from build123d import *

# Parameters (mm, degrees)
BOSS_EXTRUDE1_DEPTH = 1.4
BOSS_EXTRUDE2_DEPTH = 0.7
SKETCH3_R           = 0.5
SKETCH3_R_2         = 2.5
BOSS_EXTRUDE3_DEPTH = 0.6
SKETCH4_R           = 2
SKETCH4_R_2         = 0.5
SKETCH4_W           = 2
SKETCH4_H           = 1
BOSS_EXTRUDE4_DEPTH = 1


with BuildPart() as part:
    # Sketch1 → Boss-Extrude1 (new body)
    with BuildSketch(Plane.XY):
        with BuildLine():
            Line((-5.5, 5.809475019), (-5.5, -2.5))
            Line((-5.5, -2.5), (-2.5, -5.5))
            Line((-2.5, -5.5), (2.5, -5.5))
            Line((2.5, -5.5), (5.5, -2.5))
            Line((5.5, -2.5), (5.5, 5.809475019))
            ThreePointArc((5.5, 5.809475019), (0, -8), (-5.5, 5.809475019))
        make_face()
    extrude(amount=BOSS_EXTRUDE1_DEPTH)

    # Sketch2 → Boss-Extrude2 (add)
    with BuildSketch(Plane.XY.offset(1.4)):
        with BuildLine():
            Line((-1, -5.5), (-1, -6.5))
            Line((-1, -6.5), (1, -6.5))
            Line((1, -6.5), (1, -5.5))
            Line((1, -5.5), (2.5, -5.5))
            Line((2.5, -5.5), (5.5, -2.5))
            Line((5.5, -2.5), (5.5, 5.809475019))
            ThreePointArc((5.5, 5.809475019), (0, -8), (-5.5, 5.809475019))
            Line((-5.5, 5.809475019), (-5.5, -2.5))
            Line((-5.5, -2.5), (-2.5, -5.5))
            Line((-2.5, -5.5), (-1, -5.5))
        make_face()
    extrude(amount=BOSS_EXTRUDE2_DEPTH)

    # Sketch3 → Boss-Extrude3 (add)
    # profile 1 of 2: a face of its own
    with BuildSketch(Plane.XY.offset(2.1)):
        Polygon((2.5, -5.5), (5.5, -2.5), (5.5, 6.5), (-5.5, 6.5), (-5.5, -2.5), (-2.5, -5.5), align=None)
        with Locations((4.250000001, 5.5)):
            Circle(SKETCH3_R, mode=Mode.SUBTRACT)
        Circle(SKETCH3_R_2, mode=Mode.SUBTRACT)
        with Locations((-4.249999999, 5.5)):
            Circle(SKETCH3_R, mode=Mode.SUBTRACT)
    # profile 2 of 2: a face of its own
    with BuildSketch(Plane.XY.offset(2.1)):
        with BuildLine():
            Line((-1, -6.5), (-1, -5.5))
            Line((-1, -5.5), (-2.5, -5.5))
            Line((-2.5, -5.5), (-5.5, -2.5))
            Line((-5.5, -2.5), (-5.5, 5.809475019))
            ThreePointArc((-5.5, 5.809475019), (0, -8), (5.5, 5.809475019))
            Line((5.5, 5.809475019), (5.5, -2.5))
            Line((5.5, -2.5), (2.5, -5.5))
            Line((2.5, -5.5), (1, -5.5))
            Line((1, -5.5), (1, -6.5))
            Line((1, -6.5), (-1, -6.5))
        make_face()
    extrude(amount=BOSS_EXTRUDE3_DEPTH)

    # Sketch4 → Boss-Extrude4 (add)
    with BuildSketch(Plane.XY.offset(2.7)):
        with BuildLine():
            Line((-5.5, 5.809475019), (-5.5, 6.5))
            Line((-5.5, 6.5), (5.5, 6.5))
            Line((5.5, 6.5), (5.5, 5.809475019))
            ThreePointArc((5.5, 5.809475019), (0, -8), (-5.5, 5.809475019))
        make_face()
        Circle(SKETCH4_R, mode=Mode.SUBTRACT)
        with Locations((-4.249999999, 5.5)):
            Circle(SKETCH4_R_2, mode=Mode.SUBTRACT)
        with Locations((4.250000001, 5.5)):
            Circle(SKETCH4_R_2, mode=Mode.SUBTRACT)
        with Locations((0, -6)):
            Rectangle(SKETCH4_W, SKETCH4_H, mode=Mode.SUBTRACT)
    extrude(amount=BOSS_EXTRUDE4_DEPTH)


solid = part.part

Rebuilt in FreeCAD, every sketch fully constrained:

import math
import FreeCAD as App
import Part
import Sketcher

V = App.Vector

doc = App.newDocument("Part")
body = doc.addObject("PartDesign::Body", "Body")

# Sketch on XY plane
sketch1 = body.newObject("Sketcher::SketchObject", "Sketch")
sketch1.AttachmentSupport = (doc.getObject("XY_Plane"), [""])
sketch1.MapMode = "FlatFace"
sketch1.addGeometry(Part.LineSegment(V(-5.5, -2.5, 0), V(-5.5, 5.8, 0)), False)
sketch1.addGeometry(Part.ArcOfCircle(Part.Circle(V(0, 0, 0), V(0, 0, 1), 8), math.radians(133), math.radians(407)), False)
sketch1.addGeometry(Part.LineSegment(V(5.5, 5.8, 0), V(5.5, -2.5, 0)), False)
sketch1.addGeometry(Part.LineSegment(V(5.5, -2.5, 0), V(2.5, -5.5, 0)), False)
sketch1.addGeometry(Part.LineSegment(V(2.5, -5.5, 0), V(-2.5, -5.5, 0)), False)
sketch1.addGeometry(Part.LineSegment(V(-2.5, -5.5, 0), V(-5.5, -2.5, 0)), False)
sketch1.addConstraint(Sketcher.Constraint("Coincident", 0, 2, 1, 1))
sketch1.addConstraint(Sketcher.Constraint("Coincident", 1, 2, 2, 1))
sketch1.addConstraint(Sketcher.Constraint("Coincident", 2, 2, 3, 1))
sketch1.addConstraint(Sketcher.Constraint("Coincident", 3, 2, 4, 1))
sketch1.addConstraint(Sketcher.Constraint("Coincident", 4, 2, 5, 1))
sketch1.addConstraint(Sketcher.Constraint("Coincident", 5, 2, 0, 1))
sketch1.addConstraint(Sketcher.Constraint("Vertical", 0))
sketch1.addConstraint(Sketcher.Constraint("Vertical", 2))
sketch1.addConstraint(Sketcher.Constraint("Horizontal", 4))
sketch1.addConstraint(Sketcher.Constraint("Coincident", 1, 3, -1, 1))
sketch1.addConstraint(Sketcher.Constraint("Symmetric", 2, 2, 5, 2, -2))
sketch1.addConstraint(Sketcher.Constraint("Perpendicular", 3, 5))
sketch1.addConstraint(Sketcher.Constraint("Equal", 3, 5))
sketch1.addConstraint(Sketcher.Constraint("Radius", 1, 8.0))
sketch1.addConstraint(Sketcher.Constraint("DistanceX", 4, 2, 4, 1, 5.0))
sketch1.addConstraint(Sketcher.Constraint("DistanceX", 0, 2, 1, 2, 11.0))
sketch1.addConstraint(Sketcher.Constraint("DistanceY", 2, 2, -1, 1, 2.5))
pad1 = body.newObject("PartDesign::Pad", "Pad")
pad1.Profile = sketch1
pad1.Length = 1.4

# Sketch on XY plane
sketch2 = body.newObject("Sketcher::SketchObject", "Sketch001")
sketch2.AttachmentSupport = (doc.getObject("XY_Plane"), [""])
sketch2.MapMode = "FlatFace"
sketch2.AttachmentOffset = App.Placement(V(0, 0, 1.4), App.Rotation())
sketch2.addGeometry(Part.LineSegment(V(-1, -6.5, 0), V(-1, -5.5, 0)), False)
sketch2.addGeometry(Part.LineSegment(V(-1, -5.5, 0), V(-2.5, -5.5, 0)), False)
sketch2.addGeometry(Part.LineSegment(V(-2.5, -5.5, 0), V(-5.5, -2.5, 0)), False)
sketch2.addGeometry(Part.LineSegment(V(-5.5, -2.5, 0), V(-5.5, 5.8, 0)), False)
sketch2.addGeometry(Part.ArcOfCircle(Part.Circle(V(0, 0, 0), V(0, 0, 1), 8), math.radians(133), math.radians(407)), False)
sketch2.addGeometry(Part.LineSegment(V(5.5, 5.8, 0), V(5.5, -2.5, 0)), False)
sketch2.addGeometry(Part.LineSegment(V(5.5, -2.5, 0), V(2.5, -5.5, 0)), False)
sketch2.addGeometry(Part.LineSegment(V(2.5, -5.5, 0), V(1, -5.5, 0)), False)
sketch2.addGeometry(Part.LineSegment(V(1, -5.5, 0), V(1, -6.5, 0)), False)
sketch2.addGeometry(Part.LineSegment(V(1, -6.5, 0), V(-1, -6.5, 0)), False)
sketch2.addConstraint(Sketcher.Constraint("Coincident", 0, 2, 1, 1))
sketch2.addConstraint(Sketcher.Constraint("Coincident", 1, 2, 2, 1))
sketch2.addConstraint(Sketcher.Constraint("Coincident", 2, 2, 3, 1))
sketch2.addConstraint(Sketcher.Constraint("Coincident", 3, 2, 4, 1))
sketch2.addConstraint(Sketcher.Constraint("Coincident", 4, 2, 5, 1))
sketch2.addConstraint(Sketcher.Constraint("Coincident", 5, 2, 6, 1))
sketch2.addConstraint(Sketcher.Constraint("Coincident", 6, 2, 7, 1))
sketch2.addConstraint(Sketcher.Constraint("Coincident", 7, 2, 8, 1))
sketch2.addConstraint(Sketcher.Constraint("Coincident", 8, 2, 9, 1))
sketch2.addConstraint(Sketcher.Constraint("Coincident", 9, 2, 0, 1))
sketch2.addConstraint(Sketcher.Constraint("Vertical", 0))
sketch2.addConstraint(Sketcher.Constraint("Horizontal", 1))
sketch2.addConstraint(Sketcher.Constraint("Vertical", 3))
sketch2.addConstraint(Sketcher.Constraint("Vertical", 5))
sketch2.addConstraint(Sketcher.Constraint("Horizontal", 7))
sketch2.addConstraint(Sketcher.Constraint("Vertical", 8))
sketch2.addConstraint(Sketcher.Constraint("Horizontal", 9))
sketch2.addConstraint(Sketcher.Constraint("Coincident", 4, 3, -1, 1))
sketch2.addConstraint(Sketcher.Constraint("Symmetric", 2, 2, 5, 2, -2))
sketch2.addConstraint(Sketcher.Constraint("Symmetric", 1, 2, 6, 2, -2))
sketch2.addConstraint(Sketcher.Constraint("Perpendicular", 2, 6))
sketch2.addConstraint(Sketcher.Constraint("Equal", 1, 7))
sketch2.addConstraint(Sketcher.Constraint("Radius", 4, 8.0))
sketch2.addConstraint(Sketcher.Constraint("DistanceX", 9, 2, 9, 1, 2.0))
sketch2.addConstraint(Sketcher.Constraint("DistanceY", 0, 1, 0, 2, 1.0))
sketch2.addConstraint(Sketcher.Constraint("DistanceX", 1, 2, 1, 1, 1.5))
sketch2.addConstraint(Sketcher.Constraint("DistanceX", 2, 2, 1, 2, 3.0))
sketch2.addConstraint(Sketcher.Constraint("DistanceY", 0, 2, -1, 1, 5.5))
pad2 = body.newObject("PartDesign::Pad", "Pad001")
pad2.Profile = sketch2
pad2.Length = 0.7

# Sketch on XY plane
sketch3 = body.newObject("Sketcher::SketchObject", "Sketch002")
sketch3.AttachmentSupport = (doc.getObject("XY_Plane"), [""])
sketch3.MapMode = "FlatFace"
sketch3.AttachmentOffset = App.Placement(V(0, 0, 2.1), App.Rotation())
sketch3.addGeometry(Part.LineSegment(V(5.5, 5.8, 0), V(5.5, 6.5, 0)), False)
sketch3.addGeometry(Part.LineSegment(V(5.5, 6.5, 0), V(-5.5, 6.5, 0)), False)
sketch3.addGeometry(Part.LineSegment(V(-5.5, 6.5, 0), V(-5.5, 5.8, 0)), False)
sketch3.addGeometry(Part.ArcOfCircle(Part.Circle(V(0, 0, 0), V(0, 0, 1), 8), math.radians(133), math.radians(407)), False)
sketch3.addGeometry(Part.LineSegment(V(-1, -5.5, 0), V(1, -5.5, 0)), False)
sketch3.addGeometry(Part.LineSegment(V(1, -5.5, 0), V(1, -6.5, 0)), False)
sketch3.addGeometry(Part.LineSegment(V(1, -6.5, 0), V(-1, -6.5, 0)), False)
sketch3.addGeometry(Part.LineSegment(V(-1, -6.5, 0), V(-1, -5.5, 0)), False)
sketch3.addGeometry(Part.Circle(V(0, 0, 0), V(0, 0, 1), 2.5), False)
sketch3.addGeometry(Part.Circle(V(-4.2, 5.5, 0), V(0, 0, 1), 0.5), False)
sketch3.addGeometry(Part.Circle(V(4.3, 5.5, 0), V(0, 0, 1), 0.5), False)
sketch3.addConstraint(Sketcher.Constraint("Coincident", 0, 2, 1, 1))
sketch3.addConstraint(Sketcher.Constraint("Coincident", 1, 2, 2, 1))
sketch3.addConstraint(Sketcher.Constraint("Coincident", 2, 2, 3, 1))
sketch3.addConstraint(Sketcher.Constraint("Coincident", 3, 2, 0, 1))
sketch3.addConstraint(Sketcher.Constraint("Coincident", 4, 2, 5, 1))
sketch3.addConstraint(Sketcher.Constraint("Coincident", 5, 2, 6, 1))
sketch3.addConstraint(Sketcher.Constraint("Coincident", 6, 2, 7, 1))
sketch3.addConstraint(Sketcher.Constraint("Coincident", 7, 2, 4, 1))
sketch3.addConstraint(Sketcher.Constraint("Vertical", 0))
sketch3.addConstraint(Sketcher.Constraint("Horizontal", 1))
sketch3.addConstraint(Sketcher.Constraint("Vertical", 2))
sketch3.addConstraint(Sketcher.Constraint("Horizontal", 4))
sketch3.addConstraint(Sketcher.Constraint("Vertical", 5))
sketch3.addConstraint(Sketcher.Constraint("Horizontal", 6))
sketch3.addConstraint(Sketcher.Constraint("Vertical", 7))
sketch3.addConstraint(Sketcher.Constraint("Coincident", 3, 3, -1, 1))
sketch3.addConstraint(Sketcher.Constraint("Coincident", 8, 3, -1, 1))
sketch3.addConstraint(Sketcher.Constraint("Equal", 9, 10))
sketch3.addConstraint(Sketcher.Constraint("Symmetric", 9, 3, 10, 3, -2))
sketch3.addConstraint(Sketcher.Constraint("Horizontal", 2, 2, 3, 2))
sketch3.addConstraint(Sketcher.Constraint("Diameter", 8, 5.0))
sketch3.addConstraint(Sketcher.Constraint("Diameter", 9, 1.0))
sketch3.addConstraint(Sketcher.Constraint("Radius", 3, 8.0))
sketch3.addConstraint(Sketcher.Constraint("DistanceX", 1, 2, 1, 1, 11.0))
sketch3.addConstraint(Sketcher.Constraint("DistanceX", 4, 1, 4, 2, 2.0))
sketch3.addConstraint(Sketcher.Constraint("DistanceY", 5, 2, 5, 1, 1.0))
sketch3.addConstraint(Sketcher.Constraint("DistanceX", -1, 1, 4, 2, 1.0))
sketch3.addConstraint(Sketcher.Constraint("DistanceY", 10, 3, 0, 2, 1.0))
sketch3.addConstraint(Sketcher.Constraint("DistanceY", 4, 2, 10, 3, 11.0))
sketch3.addConstraint(Sketcher.Constraint("DistanceY", -1, 1, 9, 3, 5.5))
sketch3.addConstraint(Sketcher.Constraint("DistanceX", 9, 3, 10, 3, 8.5))
pad3 = body.newObject("PartDesign::Pad", "Pad002")
pad3.Profile = sketch3
pad3.Length = 0.6

# Sketch on XY plane
sketch4 = body.newObject("Sketcher::SketchObject", "Sketch003")
sketch4.AttachmentSupport = (doc.getObject("XY_Plane"), [""])
sketch4.MapMode = "FlatFace"
sketch4.AttachmentOffset = App.Placement(V(0, 0, 2.7), App.Rotation())
sketch4.addGeometry(Part.LineSegment(V(-5.5, 6.5, 0), V(-5.5, 5.8, 0)), False)
sketch4.addGeometry(Part.ArcOfCircle(Part.Circle(V(0, 0, 0), V(0, 0, 1), 8), math.radians(133), math.radians(407)), False)
sketch4.addGeometry(Part.LineSegment(V(5.5, 5.8, 0), V(5.5, 6.5, 0)), False)
sketch4.addGeometry(Part.LineSegment(V(5.5, 6.5, 0), V(-5.5, 6.5, 0)), False)
sketch4.addGeometry(Part.LineSegment(V(-1, -6.5, 0), V(-1, -5.5, 0)), False)
sketch4.addGeometry(Part.LineSegment(V(-1, -5.5, 0), V(1, -5.5, 0)), False)
sketch4.addGeometry(Part.LineSegment(V(1, -5.5, 0), V(1, -6.5, 0)), False)
sketch4.addGeometry(Part.LineSegment(V(1, -6.5, 0), V(-1, -6.5, 0)), False)
sketch4.addGeometry(Part.Circle(V(4.3, 5.5, 0), V(0, 0, 1), 0.5), False)
sketch4.addGeometry(Part.Circle(V(0, 0, 0), V(0, 0, 1), 2), False)
sketch4.addGeometry(Part.Circle(V(-4.2, 5.5, 0), V(0, 0, 1), 0.5), False)
sketch4.addConstraint(Sketcher.Constraint("Coincident", 0, 2, 1, 1))
sketch4.addConstraint(Sketcher.Constraint("Coincident", 1, 2, 2, 1))
sketch4.addConstraint(Sketcher.Constraint("Coincident", 2, 2, 3, 1))
sketch4.addConstraint(Sketcher.Constraint("Coincident", 3, 2, 0, 1))
sketch4.addConstraint(Sketcher.Constraint("Coincident", 4, 2, 5, 1))
sketch4.addConstraint(Sketcher.Constraint("Coincident", 5, 2, 6, 1))
sketch4.addConstraint(Sketcher.Constraint("Coincident", 6, 2, 7, 1))
sketch4.addConstraint(Sketcher.Constraint("Coincident", 7, 2, 4, 1))
sketch4.addConstraint(Sketcher.Constraint("Vertical", 0))
sketch4.addConstraint(Sketcher.Constraint("Vertical", 2))
sketch4.addConstraint(Sketcher.Constraint("Horizontal", 3))
sketch4.addConstraint(Sketcher.Constraint("Vertical", 4))
sketch4.addConstraint(Sketcher.Constraint("Horizontal", 5))
sketch4.addConstraint(Sketcher.Constraint("Vertical", 6))
sketch4.addConstraint(Sketcher.Constraint("Horizontal", 7))
sketch4.addConstraint(Sketcher.Constraint("Coincident", 1, 3, -1, 1))
sketch4.addConstraint(Sketcher.Constraint("Coincident", 9, 3, -1, 1))
sketch4.addConstraint(Sketcher.Constraint("Equal", 8, 10))
sketch4.addConstraint(Sketcher.Constraint("Symmetric", 8, 3, 10, 3, -2))
sketch4.addConstraint(Sketcher.Constraint("Horizontal", 0, 2, 1, 2))
sketch4.addConstraint(Sketcher.Constraint("Diameter", 8, 1.0))
sketch4.addConstraint(Sketcher.Constraint("Diameter", 9, 4.0))
sketch4.addConstraint(Sketcher.Constraint("Radius", 1, 8.0))
sketch4.addConstraint(Sketcher.Constraint("DistanceX", 3, 2, 3, 1, 11.0))
sketch4.addConstraint(Sketcher.Constraint("DistanceX", 5, 1, 5, 2, 2.0))
sketch4.addConstraint(Sketcher.Constraint("DistanceY", 4, 1, 4, 2, 1.0))
sketch4.addConstraint(Sketcher.Constraint("DistanceX", 4, 2, -1, 1, 1.0))
sketch4.addConstraint(Sketcher.Constraint("DistanceY", 8, 3, 2, 2, 1.0))
sketch4.addConstraint(Sketcher.Constraint("DistanceY", 4, 2, 10, 3, 11.0))
sketch4.addConstraint(Sketcher.Constraint("DistanceY", -1, 1, 8, 3, 5.5))
sketch4.addConstraint(Sketcher.Constraint("DistanceX", 10, 3, 8, 3, 8.5))
pad4 = body.newObject("PartDesign::Pad", "Pad003")
pad4.Profile = sketch4
pad4.Length = 1

doc.recompute()
